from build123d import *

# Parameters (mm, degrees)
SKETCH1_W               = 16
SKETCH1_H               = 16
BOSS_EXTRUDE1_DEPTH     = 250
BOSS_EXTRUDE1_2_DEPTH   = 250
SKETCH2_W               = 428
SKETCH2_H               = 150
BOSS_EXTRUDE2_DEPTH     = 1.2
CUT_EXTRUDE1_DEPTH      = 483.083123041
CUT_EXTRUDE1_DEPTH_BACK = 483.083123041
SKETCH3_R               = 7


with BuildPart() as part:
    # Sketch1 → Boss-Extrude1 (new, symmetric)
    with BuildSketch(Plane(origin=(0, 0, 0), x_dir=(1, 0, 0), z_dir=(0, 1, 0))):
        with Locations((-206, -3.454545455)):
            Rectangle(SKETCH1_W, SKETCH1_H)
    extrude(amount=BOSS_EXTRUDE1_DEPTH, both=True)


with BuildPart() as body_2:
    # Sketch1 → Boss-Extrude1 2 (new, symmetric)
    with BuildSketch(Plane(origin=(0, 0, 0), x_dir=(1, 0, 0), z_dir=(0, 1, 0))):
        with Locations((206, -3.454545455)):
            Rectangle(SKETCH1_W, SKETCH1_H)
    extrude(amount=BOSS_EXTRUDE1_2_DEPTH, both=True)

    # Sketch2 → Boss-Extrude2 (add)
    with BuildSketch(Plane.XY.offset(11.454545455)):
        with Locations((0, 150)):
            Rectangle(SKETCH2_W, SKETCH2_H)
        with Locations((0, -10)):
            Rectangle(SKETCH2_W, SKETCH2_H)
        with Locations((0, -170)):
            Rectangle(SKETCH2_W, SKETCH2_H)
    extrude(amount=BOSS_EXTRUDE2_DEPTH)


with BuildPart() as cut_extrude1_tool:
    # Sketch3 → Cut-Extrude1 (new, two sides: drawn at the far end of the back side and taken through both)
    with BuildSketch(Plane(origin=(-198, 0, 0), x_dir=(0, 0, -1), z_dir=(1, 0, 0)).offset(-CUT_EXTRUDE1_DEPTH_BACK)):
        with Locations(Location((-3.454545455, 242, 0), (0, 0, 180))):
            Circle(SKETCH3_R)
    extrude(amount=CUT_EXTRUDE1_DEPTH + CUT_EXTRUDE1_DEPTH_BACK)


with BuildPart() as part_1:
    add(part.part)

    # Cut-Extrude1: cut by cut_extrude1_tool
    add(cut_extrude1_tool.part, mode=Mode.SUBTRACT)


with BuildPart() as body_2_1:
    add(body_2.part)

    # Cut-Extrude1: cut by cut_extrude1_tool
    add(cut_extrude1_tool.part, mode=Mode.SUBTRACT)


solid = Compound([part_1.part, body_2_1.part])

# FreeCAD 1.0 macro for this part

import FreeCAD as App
import Part
import Sketcher

V = App.Vector
Q = App.Units.Quantity


def add_polygon(sketch, points):
    """Adds a closed chain of lines whose ends are joined by coincident constraints."""
    first, n = sketch.GeometryCount, len(points)
    for a, b in zip(points, points[1:] + points[:1]):
        sketch.addGeometry(Part.LineSegment(App.Vector(*a, 0), App.Vector(*b, 0)), False)
    for i in range(n):
        sketch.addConstraint(Sketcher.Constraint("Coincident", first + i, 2, first + (i + 1) % n, 1))

doc = App.newDocument("Part")
params = doc.addObject("Spreadsheet::Sheet", "Params")
for row, (alias, value) in enumerate([
    ("sketch1_width", "16 mm"),
    ("pad1_length", "500 mm"),
    ("sketch2_width", "16 mm"),
    ("pad2_length", "500 mm"),
    ("sketch3_width", "428 mm"),
    ("sketch3_height", "150 mm"),
    ("pad3_length", "1.2 mm"),
    ("sketch4_diameter", "14 mm"),
    ("pad4_length", "483.083123 mm"),
    ("pad4_length2", "483.083123 mm"),
], start=1):
    params.set(f"A{row}", alias)
    params.set(f"B{row}", "=" + value)
    params.setAlias(f"B{row}", alias)

body = doc.addObject("PartDesign::Body", "Body")

sketch1 = body.newObject("Sketcher::SketchObject", "Sketch")
sketch1.AttachmentSupport = (doc.getObject("XZ_Plane"), [""])
sketch1.MapMode = "FlatFace"
add_polygon(sketch1, [(-214, -5), (-214, 11), (-198, 11), (-198, -5)])
sketch1.addConstraint(Sketcher.Constraint("Vertical", 0))
sketch1.addConstraint(Sketcher.Constraint("Horizontal", 1))
sketch1.addConstraint(Sketcher.Constraint("Vertical", 2))
sketch1.addConstraint(Sketcher.Constraint("Horizontal", 3))
sketch1.addConstraint(Sketcher.Constraint("Equal", 3, 0))
sketch1.addConstraint(Sketcher.Constraint("DistanceX", 1, 1, 1, 2, Q("16 mm")))
sketch1.addConstraint(Sketcher.Constraint("DistanceX", 0, 2, -1, 1, Q("214 mm")))
sketch1.addConstraint(Sketcher.Constraint("DistanceY", -1, 1, 0, 2, Q("11.454545 mm")))
sketch1.setExpression("Constraints[9]", "Params.sketch1_width")
pad1 = body.newObject("PartDesign::Pad", "Pad")
pad1.Profile = sketch1
pad1.setExpression("Length", "Params.pad1_length")
pad1.Midplane = True
body2 = doc.addObject("PartDesign::Body", "Body001")

sketch2 = body2.newObject("Sketcher::SketchObject", "Sketch001")
sketch2.AttachmentSupport = (doc.getObject("XZ_Plane001"), [""])
sketch2.MapMode = "FlatFace"
add_polygon(sketch2, [(198, -5), (198, 11), (214, 11), (214, -5)])
sketch2.addConstraint(Sketcher.Constraint("Vertical", 0))
sketch2.addConstraint(Sketcher.Constraint("Horizontal", 1))
sketch2.addConstraint(Sketcher.Constraint("Vertical", 2))
sketch2.addConstraint(Sketcher.Constraint("Horizontal", 3))
sketch2.addConstraint(Sketcher.Constraint("Equal", 3, 0))
sketch2.addConstraint(Sketcher.Constraint("DistanceX", 1, 1, 1, 2, Q("16 mm")))
sketch2.addConstraint(Sketcher.Constraint("DistanceX", -1, 1, 0, 2, Q("198 mm")))
sketch2.addConstraint(Sketcher.Constraint("DistanceY", -1, 1, 0, 2, Q("11.454545 mm")))
sketch2.setExpression("Constraints[9]", "Params.sketch2_width")
pad2 = body2.newObject("PartDesign::Pad", "Pad001")
pad2.Profile = sketch2
pad2.setExpression("Length", "Params.pad2_length")
pad2.Midplane = True

sketch3 = body2.newObject("Sketcher::SketchObject", "Sketch002")
sketch3.AttachmentSupport = (doc.getObject("XY_Plane001"), [""])
sketch3.MapMode = "FlatFace"
sketch3.AttachmentOffset = App.Placement(V(0, 0, 11.454545), App.Rotation())
add_polygon(sketch3, [(-214, 225), (-214, 75), (214, 75), (214, 225)])
add_polygon(sketch3, [(-214, 65), (-214, -85), (214, -85), (214, 65)])
add_polygon(sketch3, [(-214, -95), (-214, -245), (214, -245), (214, -95)])
sketch3.addConstraint(Sketcher.Constraint("Vertical", 0))
sketch3.addConstraint(Sketcher.Constraint("Horizontal", 1))
sketch3.addConstraint(Sketcher.Constraint("Vertical", 2))
sketch3.addConstraint(Sketcher.Constraint("Horizontal", 3))
sketch3.addConstraint(Sketcher.Constraint("Vertical", 4))
sketch3.addConstraint(Sketcher.Constraint("Horizontal", 5))
sketch3.addConstraint(Sketcher.Constraint("Vertical", 6))
sketch3.addConstraint(Sketcher.Constraint("Horizontal", 7))
sketch3.addConstraint(Sketcher.Constraint("Vertical", 8))
sketch3.addConstraint(Sketcher.Constraint("Horizontal", 9))
sketch3.addConstraint(Sketcher.Constraint("Vertical", 10))
sketch3.addConstraint(Sketcher.Constraint("Horizontal", 11))
sketch3.addConstraint(Sketcher.Constraint("Vertical", 3, 2, 4, 2))
sketch3.addConstraint(Sketcher.Constraint("Vertical", 2, 2, 5, 2))
sketch3.addConstraint(Sketcher.Constraint("Vertical", 7, 2, 8, 2))
sketch3.addConstraint(Sketcher.Constraint("Vertical", 6, 2, 9, 2))
sketch3.addConstraint(Sketcher.Constraint("Equal", 2, 4))
sketch3.addConstraint(Sketcher.Constraint("Equal", 6, 8))
sketch3.addConstraint(Sketcher.Constraint("DistanceX", 1, 1, 1, 2, Q("428 mm")))
sketch3.addConstraint(Sketcher.Constraint("DistanceY", 0, 2, 0, 1, Q("150 mm")))
sketch3.addConstraint(Sketcher.Constraint("DistanceX", 0, 2, -1, 1, Q("214 mm")))
sketch3.addConstraint(Sketcher.Constraint("DistanceY", -1, 1, 0, 2, Q("75 mm")))
sketch3.addConstraint(Sketcher.Constraint("DistanceY", 4, 2, -1, 1, Q("85 mm")))
sketch3.addConstraint(Sketcher.Constraint("DistanceY", 8, 2, -1, 1, Q("245 mm")))
sketch3.setExpression("Constraints[30]", "Params.sketch3_width")
sketch3.setExpression("Constraints[31]", "Params.sketch3_height")
pad3 = body2.newObject("PartDesign::Pad", "Pad002")
pad3.Profile = sketch3
pad3.setExpression("Length", "Params.pad3_length")
body3 = doc.addObject("PartDesign::Body", "Body002")

sketch4 = body3.newObject("Sketcher::SketchObject", "Sketch003")
sketch4.AttachmentSupport = (doc.getObject("YZ_Plane002"), [""])
sketch4.MapMode = "FlatFace"
sketch4.AttachmentOffset = App.Placement(V(0, 0, -198), App.Rotation())
sketch4.addGeometry(Part.Circle(V(242, 3, 0), V(0, 0, 1), 7), False)
sketch4.addConstraint(Sketcher.Constraint("Diameter", 0, Q("14 mm")))
sketch4.addConstraint(Sketcher.Constraint("DistanceX", -1, 1, 0, 3, Q("242 mm")))
sketch4.addConstraint(Sketcher.Constraint("DistanceY", -1, 1, 0, 3, Q("3.454545 mm")))
sketch4.setExpression("Constraints[0]", "Params.sketch4_diameter")
pad4 = body3.newObject("PartDesign::Pad", "Pad003")
pad4.Profile = sketch4
pad4.Type = "TwoLengths"
pad4.setExpression("Length", "Params.pad4_length")
pad4.setExpression("Length2", "Params.pad4_length2")
doc.recompute()

body4 = doc.addObject("PartDesign::Body", "Body003")
body4.BaseFeature = body3
boolean = body.newObject("PartDesign::Boolean", "Boolean")
boolean.Type = "Cut"
boolean.addObjects([body4])
doc.recompute()

boolean2 = body2.newObject("PartDesign::Boolean", "Boolean001")
boolean2.Type = "Cut"
boolean2.addObjects([body3])

doc.recompute()
